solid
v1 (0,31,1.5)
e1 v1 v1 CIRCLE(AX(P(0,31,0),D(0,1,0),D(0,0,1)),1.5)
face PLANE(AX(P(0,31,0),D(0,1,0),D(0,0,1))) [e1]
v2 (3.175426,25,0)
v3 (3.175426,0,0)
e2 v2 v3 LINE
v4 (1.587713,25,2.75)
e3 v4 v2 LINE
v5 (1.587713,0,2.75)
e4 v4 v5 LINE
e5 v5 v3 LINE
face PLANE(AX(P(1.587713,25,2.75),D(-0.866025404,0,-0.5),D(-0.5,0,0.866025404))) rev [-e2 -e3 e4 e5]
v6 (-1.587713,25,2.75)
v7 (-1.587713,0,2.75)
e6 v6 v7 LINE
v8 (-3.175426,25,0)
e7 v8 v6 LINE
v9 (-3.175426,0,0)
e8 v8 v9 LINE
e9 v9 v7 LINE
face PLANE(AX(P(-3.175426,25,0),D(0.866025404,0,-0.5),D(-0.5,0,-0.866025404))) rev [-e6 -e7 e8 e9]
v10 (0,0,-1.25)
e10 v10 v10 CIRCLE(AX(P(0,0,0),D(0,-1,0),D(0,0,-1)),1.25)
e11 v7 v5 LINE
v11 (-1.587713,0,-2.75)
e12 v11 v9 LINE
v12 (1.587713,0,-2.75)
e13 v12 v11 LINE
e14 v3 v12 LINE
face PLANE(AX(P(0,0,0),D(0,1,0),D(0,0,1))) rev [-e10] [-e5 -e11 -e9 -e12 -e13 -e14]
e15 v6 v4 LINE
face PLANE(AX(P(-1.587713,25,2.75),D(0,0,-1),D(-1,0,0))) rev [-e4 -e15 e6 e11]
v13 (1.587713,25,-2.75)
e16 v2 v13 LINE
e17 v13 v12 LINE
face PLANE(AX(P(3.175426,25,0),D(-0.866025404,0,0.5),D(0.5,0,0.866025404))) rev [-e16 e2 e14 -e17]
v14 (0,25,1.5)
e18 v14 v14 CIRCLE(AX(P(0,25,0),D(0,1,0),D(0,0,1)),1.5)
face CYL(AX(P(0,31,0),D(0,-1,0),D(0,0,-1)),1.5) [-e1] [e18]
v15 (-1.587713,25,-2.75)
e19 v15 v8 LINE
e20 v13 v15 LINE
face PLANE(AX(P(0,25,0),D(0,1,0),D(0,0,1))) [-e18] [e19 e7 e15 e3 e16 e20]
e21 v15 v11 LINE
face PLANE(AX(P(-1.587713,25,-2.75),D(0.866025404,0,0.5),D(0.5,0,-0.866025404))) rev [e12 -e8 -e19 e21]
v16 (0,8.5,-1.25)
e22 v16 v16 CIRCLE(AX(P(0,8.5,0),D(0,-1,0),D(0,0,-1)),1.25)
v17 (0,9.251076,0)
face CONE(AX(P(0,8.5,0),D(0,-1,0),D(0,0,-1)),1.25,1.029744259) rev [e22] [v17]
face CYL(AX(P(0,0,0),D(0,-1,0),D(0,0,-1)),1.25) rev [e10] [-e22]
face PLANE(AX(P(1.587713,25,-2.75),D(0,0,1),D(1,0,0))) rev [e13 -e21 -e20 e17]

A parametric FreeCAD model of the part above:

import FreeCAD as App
import Part
import Sketcher

V = App.Vector
Q = App.Units.Quantity


def add_polygon(sketch, points):
    """Adds a closed chain of lines whose ends are joined by coincident constraints."""
    first, n = sketch.GeometryCount, len(points)
    for a, b in zip(points, points[1:] + points[:1]):
        sketch.addGeometry(Part.LineSegment(App.Vector(*a, 0), App.Vector(*b, 0)), False)
    for i in range(n):
        sketch.addConstraint(Sketcher.Constraint("Coincident", first + i, 2, first + (i + 1) % n, 1))

doc = App.newDocument("Part")
params = doc.addObject("Spreadsheet::Sheet", "Params")
for row, (alias, value) in enumerate([
    ("pad1_length", "25 mm"),
    ("sketch2_diameter", "3 mm"),
    ("pad2_length", "6 mm"),
    ("sketch3_diameter", "2.5 mm"),
    ("hole_diameter", "2.5 mm"),
    ("hole_depth", "8.5 mm"),
], start=1):
    params.set(f"A{row}", alias)
    params.set(f"B{row}", "=" + value)
    params.setAlias(f"B{row}", alias)

body = doc.addObject("PartDesign::Body", "Body")

sketch1 = doc.addObject("Sketcher::SketchObject", "Sketch")
body.addObject(sketch1)
sketch1.AttachmentSupport = (doc.XZ_Plane, [""])
sketch1.MapMode = "FlatFace"
add_polygon(sketch1, [(1.6, 2.8), (3.2, 0), (1.6, -2.8), (-1.6, -2.8), (-3.2, 0), (-1.6, 2.8)])
sketch1.addConstraint([
    Sketcher.Constraint("Horizontal", 2),
    Sketcher.Constraint("Horizontal", 5),
    Sketcher.Constraint("Symmetric", 0, 2, 3, 2, -1, 1),
    Sketcher.Constraint("Symmetric", 1, 2, 4, 2, -1, 1),
    Sketcher.Constraint("PointOnObject", 0, 2, -1),
    Sketcher.Constraint("Parallel", 0, 3),
    Sketcher.Constraint("Vertical", 2, 2, 4, 2),
    Sketcher.Constraint("Angle", 0, Q("-60 deg")),
    Sketcher.Constraint("DistanceY", 2, 2, 4, 2, Q("5.5 mm")),
    Sketcher.Constraint("DistanceX", 2, 2, 2, 1, Q("3.175426 mm")),
])
pad1 = doc.addObject("PartDesign::Pad", "Pad")
body.addObject(pad1)
pad1.Profile = sketch1
pad1.setExpression("Length", "Params.pad1_length")
pad1.Reversed = True

sketch2 = doc.addObject("Sketcher::SketchObject", "Sketch001")
body.addObject(sketch2)
sketch2.AttachmentSupport = (doc.XZ_Plane, [""])
sketch2.MapMode = "FlatFace"
sketch2.AttachmentOffset = App.Placement(V(0, 0, -25), App.Rotation())
sketch2.addGeometry(Part.Circle(V(0, 0, 0), V(0, 0, 1), 1.5), False)
sketch2.addConstraint([
    Sketcher.Constraint("Coincident", 0, 3, -1, 1),
    Sketcher.Constraint("Diameter", 0, Q("3 mm")),
])
sketch2.setExpression("Constraints[1]", "Params.sketch2_diameter")
pad2 = doc.addObject("PartDesign::Pad", "Pad001")
body.addObject(pad2)
pad2.Profile = sketch2
pad2.setExpression("Length", "Params.pad2_length")
pad2.Reversed = True

sketch3 = doc.addObject("Sketcher::SketchObject", "Sketch002")
body.addObject(sketch3)
sketch3.AttachmentSupport = (doc.XZ_Plane, [""])
sketch3.MapMode = "FlatFace"
sketch3.addGeometry(Part.Circle(V(0, 0, 0), V(0, 0, 1), 1.2), False)
sketch3.addConstraint([
    Sketcher.Constraint("Coincident", 0, 3, -1, 1),
    Sketcher.Constraint("Diameter", 0, Q("2.5 mm")),
])
sketch3.setExpression("Constraints[1]", "Params.sketch3_diameter")
doc.recompute()
hole = doc.addObject("PartDesign::Hole", "Hole")
body.addObject(hole)
hole.Profile = sketch3
hole.ThreadType = "None"
hole.setExpression("Diameter", "Params.hole_diameter")
hole.DepthType = "Dimension"
hole.setExpression("Depth", "Params.hole_depth")
hole.DrillPoint = "Angled"
hole.DrillPointAngle = 118

doc.recompute()
